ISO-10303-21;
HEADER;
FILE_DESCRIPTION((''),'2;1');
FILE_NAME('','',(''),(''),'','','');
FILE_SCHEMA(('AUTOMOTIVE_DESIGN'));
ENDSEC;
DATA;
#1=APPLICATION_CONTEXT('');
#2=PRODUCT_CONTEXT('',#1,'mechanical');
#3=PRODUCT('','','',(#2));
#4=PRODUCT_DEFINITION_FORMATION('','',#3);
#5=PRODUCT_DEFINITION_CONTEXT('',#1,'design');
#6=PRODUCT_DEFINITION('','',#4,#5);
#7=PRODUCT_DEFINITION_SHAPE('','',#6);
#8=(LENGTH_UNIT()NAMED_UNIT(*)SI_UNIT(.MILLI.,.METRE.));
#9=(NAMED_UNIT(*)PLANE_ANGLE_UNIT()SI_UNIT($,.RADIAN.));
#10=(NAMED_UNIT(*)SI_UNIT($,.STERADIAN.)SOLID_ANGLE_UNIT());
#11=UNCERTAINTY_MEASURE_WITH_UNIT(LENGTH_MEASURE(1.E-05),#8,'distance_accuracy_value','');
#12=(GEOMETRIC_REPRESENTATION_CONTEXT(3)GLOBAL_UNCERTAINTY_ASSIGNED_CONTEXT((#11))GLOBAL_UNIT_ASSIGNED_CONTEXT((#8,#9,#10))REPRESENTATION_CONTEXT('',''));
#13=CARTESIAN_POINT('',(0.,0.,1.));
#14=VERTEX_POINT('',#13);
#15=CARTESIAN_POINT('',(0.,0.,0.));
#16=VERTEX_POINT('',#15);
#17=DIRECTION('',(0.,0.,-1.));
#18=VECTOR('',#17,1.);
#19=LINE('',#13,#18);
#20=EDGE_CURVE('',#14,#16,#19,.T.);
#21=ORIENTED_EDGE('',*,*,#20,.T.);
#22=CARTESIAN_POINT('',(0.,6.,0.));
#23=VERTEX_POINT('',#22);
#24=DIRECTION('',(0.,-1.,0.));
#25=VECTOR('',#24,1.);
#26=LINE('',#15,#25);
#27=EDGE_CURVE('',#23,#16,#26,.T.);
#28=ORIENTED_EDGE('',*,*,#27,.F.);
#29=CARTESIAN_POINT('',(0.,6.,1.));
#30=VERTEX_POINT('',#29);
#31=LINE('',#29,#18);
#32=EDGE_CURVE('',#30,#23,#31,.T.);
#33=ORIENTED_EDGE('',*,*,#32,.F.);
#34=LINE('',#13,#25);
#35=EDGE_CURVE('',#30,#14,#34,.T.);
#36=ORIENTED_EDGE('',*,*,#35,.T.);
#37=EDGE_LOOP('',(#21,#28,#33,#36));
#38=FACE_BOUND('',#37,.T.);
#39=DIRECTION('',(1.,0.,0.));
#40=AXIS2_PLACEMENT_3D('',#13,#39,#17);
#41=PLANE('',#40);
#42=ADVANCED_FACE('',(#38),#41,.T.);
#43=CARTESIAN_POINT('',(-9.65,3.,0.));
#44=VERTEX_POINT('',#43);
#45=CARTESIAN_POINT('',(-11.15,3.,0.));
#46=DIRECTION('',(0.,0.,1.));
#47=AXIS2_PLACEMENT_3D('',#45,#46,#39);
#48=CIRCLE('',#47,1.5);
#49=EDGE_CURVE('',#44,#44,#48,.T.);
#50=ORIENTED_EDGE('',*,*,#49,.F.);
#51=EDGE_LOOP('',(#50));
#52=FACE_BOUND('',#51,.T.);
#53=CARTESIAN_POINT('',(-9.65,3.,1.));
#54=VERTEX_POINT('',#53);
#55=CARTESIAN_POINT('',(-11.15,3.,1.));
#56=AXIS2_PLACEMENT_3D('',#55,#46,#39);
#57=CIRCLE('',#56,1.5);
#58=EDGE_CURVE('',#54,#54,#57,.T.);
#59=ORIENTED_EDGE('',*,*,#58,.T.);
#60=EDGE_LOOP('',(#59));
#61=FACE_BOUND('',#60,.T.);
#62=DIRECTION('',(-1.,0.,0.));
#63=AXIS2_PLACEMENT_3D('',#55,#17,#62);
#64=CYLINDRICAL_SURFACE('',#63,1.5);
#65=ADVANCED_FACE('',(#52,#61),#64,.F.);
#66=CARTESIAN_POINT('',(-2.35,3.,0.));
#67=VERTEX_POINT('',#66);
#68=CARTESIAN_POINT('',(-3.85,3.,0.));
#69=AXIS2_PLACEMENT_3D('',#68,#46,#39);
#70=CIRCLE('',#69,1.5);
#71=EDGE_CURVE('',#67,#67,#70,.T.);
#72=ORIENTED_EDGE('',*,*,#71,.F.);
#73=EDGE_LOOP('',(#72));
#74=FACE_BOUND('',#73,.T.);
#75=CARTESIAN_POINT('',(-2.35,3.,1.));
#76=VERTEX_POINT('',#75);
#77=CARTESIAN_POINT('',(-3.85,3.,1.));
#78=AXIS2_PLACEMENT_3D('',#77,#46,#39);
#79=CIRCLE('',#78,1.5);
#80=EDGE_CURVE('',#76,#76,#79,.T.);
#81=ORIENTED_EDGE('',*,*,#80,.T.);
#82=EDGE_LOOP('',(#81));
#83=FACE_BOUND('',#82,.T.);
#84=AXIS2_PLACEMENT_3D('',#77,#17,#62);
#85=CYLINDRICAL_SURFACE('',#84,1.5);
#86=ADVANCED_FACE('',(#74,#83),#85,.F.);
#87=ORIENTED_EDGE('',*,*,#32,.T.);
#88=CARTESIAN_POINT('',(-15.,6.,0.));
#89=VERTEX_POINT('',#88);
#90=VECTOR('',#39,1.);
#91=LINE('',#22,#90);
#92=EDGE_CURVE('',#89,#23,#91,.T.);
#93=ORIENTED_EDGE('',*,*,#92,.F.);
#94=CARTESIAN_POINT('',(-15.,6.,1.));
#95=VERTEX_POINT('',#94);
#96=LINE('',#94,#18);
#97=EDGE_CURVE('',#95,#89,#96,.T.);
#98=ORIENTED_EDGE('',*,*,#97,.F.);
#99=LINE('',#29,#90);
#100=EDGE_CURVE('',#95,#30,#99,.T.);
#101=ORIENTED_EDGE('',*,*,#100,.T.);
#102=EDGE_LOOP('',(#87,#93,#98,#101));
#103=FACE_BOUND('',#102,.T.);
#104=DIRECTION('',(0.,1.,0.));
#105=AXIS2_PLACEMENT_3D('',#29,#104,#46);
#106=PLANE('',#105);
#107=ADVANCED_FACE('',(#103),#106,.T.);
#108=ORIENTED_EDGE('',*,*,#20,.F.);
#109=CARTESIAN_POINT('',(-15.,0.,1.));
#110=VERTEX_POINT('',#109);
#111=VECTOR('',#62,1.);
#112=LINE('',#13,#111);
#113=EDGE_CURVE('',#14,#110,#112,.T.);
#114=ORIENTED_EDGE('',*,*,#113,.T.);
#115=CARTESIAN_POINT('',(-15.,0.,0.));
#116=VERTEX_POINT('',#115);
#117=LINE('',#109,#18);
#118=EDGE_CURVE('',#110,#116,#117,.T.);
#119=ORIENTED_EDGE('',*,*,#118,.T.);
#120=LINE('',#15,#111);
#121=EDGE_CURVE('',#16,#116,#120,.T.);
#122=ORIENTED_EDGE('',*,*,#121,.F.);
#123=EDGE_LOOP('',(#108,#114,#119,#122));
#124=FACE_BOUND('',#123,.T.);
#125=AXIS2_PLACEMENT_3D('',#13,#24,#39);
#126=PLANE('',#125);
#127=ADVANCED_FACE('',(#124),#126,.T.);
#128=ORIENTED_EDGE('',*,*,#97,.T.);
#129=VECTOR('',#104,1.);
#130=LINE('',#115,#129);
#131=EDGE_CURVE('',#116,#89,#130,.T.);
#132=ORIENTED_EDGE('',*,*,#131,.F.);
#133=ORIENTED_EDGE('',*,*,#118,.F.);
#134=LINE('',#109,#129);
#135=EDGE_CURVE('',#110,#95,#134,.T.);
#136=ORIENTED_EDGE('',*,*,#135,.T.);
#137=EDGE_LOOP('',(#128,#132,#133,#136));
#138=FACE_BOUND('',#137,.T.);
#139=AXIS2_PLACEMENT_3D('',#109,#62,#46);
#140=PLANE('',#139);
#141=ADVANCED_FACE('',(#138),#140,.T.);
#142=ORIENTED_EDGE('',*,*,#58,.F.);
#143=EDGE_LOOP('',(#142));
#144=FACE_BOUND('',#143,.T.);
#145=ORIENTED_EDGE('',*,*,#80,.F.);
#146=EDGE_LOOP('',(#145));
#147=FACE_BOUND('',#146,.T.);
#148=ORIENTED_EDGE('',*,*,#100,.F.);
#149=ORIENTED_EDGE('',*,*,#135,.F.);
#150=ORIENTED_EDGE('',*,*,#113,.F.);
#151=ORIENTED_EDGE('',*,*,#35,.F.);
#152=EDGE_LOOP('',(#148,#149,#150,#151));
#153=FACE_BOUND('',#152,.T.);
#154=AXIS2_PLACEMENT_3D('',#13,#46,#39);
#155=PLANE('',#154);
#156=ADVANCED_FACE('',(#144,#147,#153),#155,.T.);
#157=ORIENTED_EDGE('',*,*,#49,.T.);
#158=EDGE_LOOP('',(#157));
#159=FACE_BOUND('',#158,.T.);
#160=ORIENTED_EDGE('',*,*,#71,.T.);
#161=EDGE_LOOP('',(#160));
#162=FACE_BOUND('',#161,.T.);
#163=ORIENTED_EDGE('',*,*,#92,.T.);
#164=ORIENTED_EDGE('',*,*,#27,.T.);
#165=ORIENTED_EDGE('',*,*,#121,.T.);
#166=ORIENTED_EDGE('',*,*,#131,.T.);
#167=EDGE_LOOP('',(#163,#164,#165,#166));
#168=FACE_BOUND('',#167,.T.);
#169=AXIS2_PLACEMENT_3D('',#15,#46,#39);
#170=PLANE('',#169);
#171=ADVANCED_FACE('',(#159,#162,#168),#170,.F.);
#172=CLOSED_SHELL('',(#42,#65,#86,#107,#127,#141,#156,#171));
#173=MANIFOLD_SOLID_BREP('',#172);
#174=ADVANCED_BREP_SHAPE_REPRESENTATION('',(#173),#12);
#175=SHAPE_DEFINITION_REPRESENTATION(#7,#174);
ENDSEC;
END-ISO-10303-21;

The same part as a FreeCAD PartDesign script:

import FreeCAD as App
import Part
import Sketcher
from FreeCAD import Vector

doc = App.newDocument("Part")
body = doc.addObject("PartDesign::Body", "Body")

# Sketch on XY plane
sketch1 = body.newObject("Sketcher::SketchObject", "Sketch")
sketch1.AttachmentSupport = (doc.getObject("XY_Plane"), [""])
sketch1.MapMode = "FlatFace"
sketch1.addGeometry(Part.LineSegment(Vector(-15, 6, 0), Vector(-15, 0, 0)), False)
sketch1.addGeometry(Part.LineSegment(Vector(-15, 0, 0), Vector(0, 0, 0)), False)
sketch1.addGeometry(Part.LineSegment(Vector(0, 0, 0), Vector(0, 6, 0)), False)
sketch1.addGeometry(Part.LineSegment(Vector(0, 6, 0), Vector(-15, 6, 0)), False)
sketch1.addGeometry(Part.Circle(Vector(-11.15, 3, 0), Vector(0, 0, 1), 1.5), False)
sketch1.addGeometry(Part.Circle(Vector(-3.85, 3, 0), Vector(0, 0, 1), 1.5), False)
sketch1.addConstraint(Sketcher.Constraint("Coincident", 0, 2, 1, 1))
sketch1.addConstraint(Sketcher.Constraint("Coincident", 1, 2, 2, 1))
sketch1.addConstraint(Sketcher.Constraint("Coincident", 2, 2, 3, 1))
sketch1.addConstraint(Sketcher.Constraint("Coincident", 3, 2, 0, 1))
sketch1.addConstraint(Sketcher.Constraint("Vertical", 0))
sketch1.addConstraint(Sketcher.Constraint("Horizontal", 1))
sketch1.addConstraint(Sketcher.Constraint("Vertical", 2))
sketch1.addConstraint(Sketcher.Constraint("Horizontal", 3))
sketch1.addConstraint(Sketcher.Constraint("Coincident", 1, 2, -1, 1))
sketch1.addConstraint(Sketcher.Constraint("Equal", 4, 5))
sketch1.addConstraint(Sketcher.Constraint("Horizontal", 4, 3, 5, 3))
sketch1.addConstraint(Sketcher.Constraint("Diameter", 4, 3.0))
sketch1.addConstraint(Sketcher.Constraint("DistanceX", 1, 1, 1, 2, 15.0))
sketch1.addConstraint(Sketcher.Constraint("DistanceY", 0, 2, 0, 1, 6.0))
sketch1.addConstraint(Sketcher.Constraint("DistanceY", -1, 1, 4, 3, 3.0))
sketch1.addConstraint(Sketcher.Constraint("DistanceX", 4, 3, 5, 3, 7.3))
sketch1.addConstraint(Sketcher.Constraint("DistanceX", 4, 3, -1, 1, 11.15))
pad1 = body.newObject("PartDesign::Pad", "Pad")
pad1.Profile = sketch1
pad1.Length = 1

doc.recompute()
